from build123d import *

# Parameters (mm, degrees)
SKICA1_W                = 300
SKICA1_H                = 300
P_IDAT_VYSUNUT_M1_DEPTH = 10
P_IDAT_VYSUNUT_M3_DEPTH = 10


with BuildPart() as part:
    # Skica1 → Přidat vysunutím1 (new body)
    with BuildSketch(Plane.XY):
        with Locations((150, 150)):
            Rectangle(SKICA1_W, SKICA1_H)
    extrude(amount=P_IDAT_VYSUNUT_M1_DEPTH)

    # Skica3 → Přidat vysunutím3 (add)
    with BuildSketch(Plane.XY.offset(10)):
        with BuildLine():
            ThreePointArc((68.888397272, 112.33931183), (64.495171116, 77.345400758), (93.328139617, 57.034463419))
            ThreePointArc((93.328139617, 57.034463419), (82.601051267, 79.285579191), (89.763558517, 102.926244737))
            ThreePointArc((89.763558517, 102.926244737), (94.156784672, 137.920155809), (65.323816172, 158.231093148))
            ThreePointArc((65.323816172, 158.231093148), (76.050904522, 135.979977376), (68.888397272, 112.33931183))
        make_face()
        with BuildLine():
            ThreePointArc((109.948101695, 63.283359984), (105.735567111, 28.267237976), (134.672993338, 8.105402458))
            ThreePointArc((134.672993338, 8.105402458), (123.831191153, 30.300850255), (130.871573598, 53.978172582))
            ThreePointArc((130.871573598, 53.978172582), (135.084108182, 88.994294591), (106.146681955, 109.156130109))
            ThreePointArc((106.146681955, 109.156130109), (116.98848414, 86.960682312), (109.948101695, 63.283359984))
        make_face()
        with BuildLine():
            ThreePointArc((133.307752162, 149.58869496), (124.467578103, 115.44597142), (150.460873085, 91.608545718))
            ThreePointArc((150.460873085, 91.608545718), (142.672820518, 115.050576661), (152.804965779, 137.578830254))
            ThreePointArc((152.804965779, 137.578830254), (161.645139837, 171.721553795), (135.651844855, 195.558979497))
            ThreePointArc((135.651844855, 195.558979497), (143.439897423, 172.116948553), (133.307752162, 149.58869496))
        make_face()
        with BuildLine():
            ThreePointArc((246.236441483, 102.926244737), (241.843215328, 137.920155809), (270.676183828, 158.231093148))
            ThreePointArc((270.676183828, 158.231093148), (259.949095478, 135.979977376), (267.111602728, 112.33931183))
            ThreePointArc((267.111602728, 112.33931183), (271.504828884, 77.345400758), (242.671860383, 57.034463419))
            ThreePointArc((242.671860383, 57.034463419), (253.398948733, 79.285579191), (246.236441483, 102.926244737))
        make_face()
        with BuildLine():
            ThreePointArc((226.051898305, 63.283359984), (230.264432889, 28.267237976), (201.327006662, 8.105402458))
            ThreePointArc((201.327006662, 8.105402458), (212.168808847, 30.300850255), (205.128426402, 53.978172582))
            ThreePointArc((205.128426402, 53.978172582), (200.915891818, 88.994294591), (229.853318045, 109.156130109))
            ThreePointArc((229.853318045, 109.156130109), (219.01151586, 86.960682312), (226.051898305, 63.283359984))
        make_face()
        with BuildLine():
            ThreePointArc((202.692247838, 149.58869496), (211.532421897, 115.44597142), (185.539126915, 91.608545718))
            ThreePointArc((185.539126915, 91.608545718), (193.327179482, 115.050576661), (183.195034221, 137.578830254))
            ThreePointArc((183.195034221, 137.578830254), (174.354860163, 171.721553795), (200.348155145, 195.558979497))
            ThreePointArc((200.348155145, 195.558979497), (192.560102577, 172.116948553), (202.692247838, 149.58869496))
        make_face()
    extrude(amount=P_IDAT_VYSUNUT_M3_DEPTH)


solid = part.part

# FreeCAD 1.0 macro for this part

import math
import FreeCAD as App
import Part
import Sketcher

V = App.Vector


def add_polygon(sketch, points):
    """Adds a closed chain of lines whose ends are joined by coincident constraints."""
    first, n = sketch.GeometryCount, len(points)
    for a, b in zip(points, points[1:] + points[:1]):
        sketch.addGeometry(Part.LineSegment(App.Vector(*a, 0), App.Vector(*b, 0)), False)
    for i in range(n):
        sketch.addConstraint(Sketcher.Constraint("Coincident", first + i, 2, first + (i + 1) % n, 1))

doc = App.newDocument("Part")
body = doc.addObject("PartDesign::Body", "Body")

sketch1 = body.newObject("Sketcher::SketchObject", "Sketch")
sketch1.AttachmentSupport = (doc.getObject("XY_Plane"), [""])
sketch1.MapMode = "FlatFace"
add_polygon(sketch1, [(0, 300), (0, 0), (300, 0), (300, 300)])
sketch1.addConstraint([
    Sketcher.Constraint("Vertical", 0),
    Sketcher.Constraint("Horizontal", 1),
    Sketcher.Constraint("Vertical", 2),
    Sketcher.Constraint("Horizontal", 3),
    Sketcher.Constraint("Coincident", 0, 2, -1, 1),
    Sketcher.Constraint("Equal", 3, 0),
    Sketcher.Constraint("DistanceX", 1, 1, 1, 2, 300.0),
])
pad1 = body.newObject("PartDesign::Pad", "Pad")
pad1.Profile = sketch1
pad1.Length = 10

sketch2 = body.newObject("Sketcher::SketchObject", "Sketch001")
sketch2.AttachmentSupport = (doc.getObject("XY_Plane"), [""])
sketch2.MapMode = "FlatFace"
sketch2.AttachmentOffset = App.Placement(V(0, 0, 10), App.Rotation())
sketch2.addGeometry([
    Part.ArcOfCircle(Part.Circle(V(95.815386, 91.186104, 0), V(0, 0, 1), 34.242093), math.radians(141.847657), math.radians(265.834532)),
    Part.ArcOfCircle(Part.Circle(V(116.504741, 81.919002, 0), V(0, 0, 1), 34.00581), math.radians(141.847657), math.radians(227.035249)),
    Part.ArcOfCircle(Part.Circle(V(62.836569, 124.079453, 0), V(0, 0, 1), 34.242093), math.radians(-38.152343), math.radians(85.834532)),
    Part.ArcOfCircle(Part.Circle(V(42.147214, 133.346555, 0), V(0, 0, 1), 34.00581), math.radians(-38.152343), math.radians(47.035249)),
    Part.ArcOfCircle(Part.Circle(V(136.983922, 42.269427, 0), V(0, 0, 1), 34.242093), math.radians(142.14341), math.radians(266.130285)),
    Part.ArcOfCircle(Part.Circle(V(157.720836, 33.109243, 0), V(0, 0, 1), 34.00581), math.radians(142.14341), math.radians(227.331002)),
    Part.ArcOfCircle(Part.Circle(V(103.835754, 74.992106, 0), V(0, 0, 1), 34.242093), math.radians(-37.85659), math.radians(86.130285)),
    Part.ArcOfCircle(Part.Circle(V(83.098839, 84.152289, 0), V(0, 0, 1), 34.00581), math.radians(-37.85659), math.radians(47.331002)),
    Part.ArcOfCircle(Part.Circle(V(157.302868, 125.160119, 0), V(0, 0, 1), 34.242093), math.radians(134.487136), math.radians(258.47401)),
    Part.ArcOfCircle(Part.Circle(V(176.634507, 113.31882, 0), V(0, 0, 1), 34.00581), math.radians(134.487136), math.radians(219.674728)),
    Part.ArcOfCircle(Part.Circle(V(128.80985, 162.007407, 0), V(0, 0, 1), 34.242093), math.radians(-45.512864), math.radians(78.47401)),
    Part.ArcOfCircle(Part.Circle(V(109.478211, 173.848705, 0), V(0, 0, 1), 34.00581), math.radians(-45.512864), math.radians(39.674728)),
    Part.ArcOfCircle(Part.Circle(V(273.163431, 124.079453, 0), V(0, 0, 1), 34.242093), math.radians(94.165468), math.radians(218.152343)),
    Part.ArcOfCircle(Part.Circle(V(219.495259, 81.919002, 0), V(0, 0, 1), 34.00581), math.radians(-47.035249), math.radians(38.152343)),
    Part.ArcOfCircle(Part.Circle(V(240.184614, 91.186104, 0), V(0, 0, 1), 34.242093), math.radians(-85.834532), math.radians(38.152343)),
    Part.ArcOfCircle(Part.Circle(V(293.852786, 133.346555, 0), V(0, 0, 1), 34.00581), math.radians(132.964751), math.radians(218.152343)),
    Part.ArcOfCircle(Part.Circle(V(199.016078, 42.269427, 0), V(0, 0, 1), 34.242093), math.radians(-86.130285), math.radians(37.85659)),
    Part.ArcOfCircle(Part.Circle(V(252.901161, 84.152289, 0), V(0, 0, 1), 34.00581), math.radians(132.668998), math.radians(217.85659)),
    Part.ArcOfCircle(Part.Circle(V(232.164246, 74.992106, 0), V(0, 0, 1), 34.242093), math.radians(93.869715), math.radians(217.85659)),
    Part.ArcOfCircle(Part.Circle(V(178.279164, 33.109243, 0), V(0, 0, 1), 34.00581), math.radians(-47.331002), math.radians(37.85659)),
    Part.ArcOfCircle(Part.Circle(V(178.697132, 125.160119, 0), V(0, 0, 1), 34.242093), math.radians(-78.47401), math.radians(45.512864)),
    Part.ArcOfCircle(Part.Circle(V(226.521789, 173.848705, 0), V(0, 0, 1), 34.00581), math.radians(140.325272), math.radians(225.512864)),
    Part.ArcOfCircle(Part.Circle(V(207.19015, 162.007407, 0), V(0, 0, 1), 34.242093), math.radians(101.52599), math.radians(225.512864)),
    Part.ArcOfCircle(Part.Circle(V(159.365493, 113.31882, 0), V(0, 0, 1), 34.00581), math.radians(-39.674728), math.radians(45.512864)),
], False)
sketch2.addConstraint([
    Sketcher.Constraint("Coincident", 0, 2, 1, 2),
    Sketcher.Constraint("Coincident", 1, 1, 2, 1),
    Sketcher.Constraint("Coincident", 2, 2, 3, 2),
    Sketcher.Constraint("Coincident", 3, 1, 0, 1),
    Sketcher.Constraint("Coincident", 4, 2, 5, 2),
    Sketcher.Constraint("Coincident", 5, 1, 6, 1),
    Sketcher.Constraint("Coincident", 6, 2, 7, 2),
    Sketcher.Constraint("Coincident", 7, 1, 4, 1),
    Sketcher.Constraint("Coincident", 8, 2, 9, 2),
    Sketcher.Constraint("Coincident", 9, 1, 10, 1),
    Sketcher.Constraint("Coincident", 10, 2, 11, 2),
    Sketcher.Constraint("Coincident", 11, 1, 8, 1),
    Sketcher.Constraint("Coincident", 12, 2, 13, 2),
    Sketcher.Constraint("Coincident", 13, 1, 14, 1),
    Sketcher.Constraint("Coincident", 14, 2, 15, 2),
    Sketcher.Constraint("Coincident", 15, 1, 12, 1),
    Sketcher.Constraint("Coincident", 16, 2, 17, 2),
    Sketcher.Constraint("Coincident", 17, 1, 18, 1),
    Sketcher.Constraint("Coincident", 18, 2, 19, 2),
    Sketcher.Constraint("Coincident", 19, 1, 16, 1),
    Sketcher.Constraint("Coincident", 20, 2, 21, 2),
    Sketcher.Constraint("Coincident", 21, 1, 22, 1),
    Sketcher.Constraint("Coincident", 22, 2, 23, 2),
    Sketcher.Constraint("Coincident", 23, 1, 20, 1),
    Sketcher.Constraint("Radius", 1, 34.00581),
    Sketcher.Constraint("Radius", 3, 34.00581),
    Sketcher.Constraint("Radius", 5, 34.00581),
    Sketcher.Constraint("Radius", 7, 34.00581),
    Sketcher.Constraint("Radius", 9, 34.00581),
    Sketcher.Constraint("Radius", 11, 34.00581),
    Sketcher.Constraint("Radius", 13, 34.00581),
    Sketcher.Constraint("Radius", 15, 34.00581),
    Sketcher.Constraint("Radius", 17, 34.00581),
    Sketcher.Constraint("Radius", 19, 34.00581),
    Sketcher.Constraint("Radius", 21, 34.00581),
    Sketcher.Constraint("Radius", 23, 34.00581),
    Sketcher.Constraint("DistanceY", -1, 1, 1, 3, 81.919002),
    Sketcher.Constraint("DistanceY", -1, 1, 13, 3, 81.919002),
    Sketcher.Constraint("Radius", 0, 34.242093),
    Sketcher.Constraint("Radius", 2, 34.242093),
    Sketcher.Constraint("Radius", 4, 34.242093),
    Sketcher.Constraint("Radius", 6, 34.242093),
    Sketcher.Constraint("Radius", 8, 34.242093),
    Sketcher.Constraint("Radius", 10, 34.242093),
    Sketcher.Constraint("Radius", 12, 34.242093),
    Sketcher.Constraint("Radius", 14, 34.242093),
    Sketcher.Constraint("Radius", 16, 34.242093),
    Sketcher.Constraint("Radius", 18, 34.242093),
    Sketcher.Constraint("Radius", 20, 34.242093),
    Sketcher.Constraint("Radius", 22, 34.242093),
    Sketcher.Constraint("DistanceY", 6, 3, 0, 3, 16.193998),
    Sketcher.Constraint("DistanceY", 18, 3, 14, 3, 16.193998),
    Sketcher.Constraint("DistanceX", -1, 1, 7, 1, 109.948102),
    Sketcher.Constraint("DistanceX", -1, 1, 16, 2, 226.051898),
    Sketcher.Constraint("DistanceY", 9, 3, 8, 3, 11.841299),
    Sketcher.Constraint("DistanceY", 10, 3, 11, 3, 11.841299),
    Sketcher.Constraint("DistanceY", 0, 3, 11, 3, 82.662601),
    Sketcher.Constraint("DistanceY", 9, 3, 20, 3, 11.841299),
    Sketcher.Constraint("DistanceY", 14, 3, 21, 3, 82.662601),
    Sketcher.Constraint("DistanceY", 22, 3, 21, 3, 11.841299),
    Sketcher.Constraint("DistanceY", 23, 3, 8, 3, 11.841299),
    Sketcher.Constraint("DistanceX", 7, 3, 0, 2, 10.229301),
    Sketcher.Constraint("DistanceX", 0, 2, 1, 3, 23.176602),
    Sketcher.Constraint("DistanceX", 3, 3, 2, 2, 23.176602),
    Sketcher.Constraint("DistanceX", 5, 1, 8, 2, 19.589299),
    Sketcher.Constraint("DistanceX", 13, 1, 17, 3, 10.229301),
    Sketcher.Constraint("DistanceX", 13, 3, 13, 1, 23.176602),
    Sketcher.Constraint("DistanceX", 15, 1, 15, 3, 23.176602),
    Sketcher.Constraint("DistanceX", -1, 1, 1, 3, 116.504741),
    Sketcher.Constraint("DistanceX", -1, 1, 2, 3, 62.836569),
    Sketcher.Constraint("DistanceX", -1, 1, 4, 3, 136.983922),
    Sketcher.Constraint("DistanceY", -1, 1, 7, 3, 84.152289),
    Sketcher.Constraint("DistanceX", -1, 1, 8, 3, 157.302868),
    Sketcher.Constraint("DistanceY", -1, 1, 8, 3, 125.160119),
    Sketcher.Constraint("DistanceX", -1, 1, 10, 3, 128.80985),
    Sketcher.Constraint("DistanceX", -1, 1, 11, 3, 109.478211),
    Sketcher.Constraint("DistanceX", -1, 1, 12, 3, 273.163431),
    Sketcher.Constraint("DistanceX", -1, 1, 13, 3, 219.495259),
    Sketcher.Constraint("DistanceX", -1, 1, 16, 3, 199.016078),
    Sketcher.Constraint("DistanceY", -1, 1, 17, 3, 84.152289),
    Sketcher.Constraint("DistanceX", -1, 1, 20, 3, 178.697132),
    Sketcher.Constraint("DistanceX", -1, 1, 21, 3, 226.521789),
    Sketcher.Constraint("DistanceX", -1, 1, 22, 3, 207.19015),
    Sketcher.Constraint("DistanceX", -1, 1, 1, 1, 89.763559),
    Sketcher.Constraint("DistanceY", -1, 1, 3, 1, 112.339312),
    Sketcher.Constraint("DistanceY", -1, 1, 6, 2, 109.15613),
    Sketcher.Constraint("DistanceY", -1, 1, 9, 1, 137.57883),
    Sketcher.Constraint("DistanceX", -1, 1, 12, 2, 246.236441),
    Sketcher.Constraint("DistanceY", -1, 1, 14, 2, 112.339312),
    Sketcher.Constraint("DistanceX", -1, 1, 17, 1, 229.853318),
    Sketcher.Constraint("DistanceY", -1, 1, 22, 2, 137.57883),
    Sketcher.Constraint("DistanceY", 5, 3, 1, 3, 48.809759),
    Sketcher.Constraint("DistanceY", 19, 3, 13, 3, 48.809759),
    Sketcher.Constraint("DistanceY", 11, 1, 10, 3, 12.418712),
    Sketcher.Constraint("DistanceX", 18, 2, 16, 2, 20.923472),
    Sketcher.Constraint("DistanceY", 20, 2, 22, 3, 12.418712),
])
pad2 = body.newObject("PartDesign::Pad", "Pad001")
pad2.Profile = sketch2
pad2.Length = 10

doc.recompute()
